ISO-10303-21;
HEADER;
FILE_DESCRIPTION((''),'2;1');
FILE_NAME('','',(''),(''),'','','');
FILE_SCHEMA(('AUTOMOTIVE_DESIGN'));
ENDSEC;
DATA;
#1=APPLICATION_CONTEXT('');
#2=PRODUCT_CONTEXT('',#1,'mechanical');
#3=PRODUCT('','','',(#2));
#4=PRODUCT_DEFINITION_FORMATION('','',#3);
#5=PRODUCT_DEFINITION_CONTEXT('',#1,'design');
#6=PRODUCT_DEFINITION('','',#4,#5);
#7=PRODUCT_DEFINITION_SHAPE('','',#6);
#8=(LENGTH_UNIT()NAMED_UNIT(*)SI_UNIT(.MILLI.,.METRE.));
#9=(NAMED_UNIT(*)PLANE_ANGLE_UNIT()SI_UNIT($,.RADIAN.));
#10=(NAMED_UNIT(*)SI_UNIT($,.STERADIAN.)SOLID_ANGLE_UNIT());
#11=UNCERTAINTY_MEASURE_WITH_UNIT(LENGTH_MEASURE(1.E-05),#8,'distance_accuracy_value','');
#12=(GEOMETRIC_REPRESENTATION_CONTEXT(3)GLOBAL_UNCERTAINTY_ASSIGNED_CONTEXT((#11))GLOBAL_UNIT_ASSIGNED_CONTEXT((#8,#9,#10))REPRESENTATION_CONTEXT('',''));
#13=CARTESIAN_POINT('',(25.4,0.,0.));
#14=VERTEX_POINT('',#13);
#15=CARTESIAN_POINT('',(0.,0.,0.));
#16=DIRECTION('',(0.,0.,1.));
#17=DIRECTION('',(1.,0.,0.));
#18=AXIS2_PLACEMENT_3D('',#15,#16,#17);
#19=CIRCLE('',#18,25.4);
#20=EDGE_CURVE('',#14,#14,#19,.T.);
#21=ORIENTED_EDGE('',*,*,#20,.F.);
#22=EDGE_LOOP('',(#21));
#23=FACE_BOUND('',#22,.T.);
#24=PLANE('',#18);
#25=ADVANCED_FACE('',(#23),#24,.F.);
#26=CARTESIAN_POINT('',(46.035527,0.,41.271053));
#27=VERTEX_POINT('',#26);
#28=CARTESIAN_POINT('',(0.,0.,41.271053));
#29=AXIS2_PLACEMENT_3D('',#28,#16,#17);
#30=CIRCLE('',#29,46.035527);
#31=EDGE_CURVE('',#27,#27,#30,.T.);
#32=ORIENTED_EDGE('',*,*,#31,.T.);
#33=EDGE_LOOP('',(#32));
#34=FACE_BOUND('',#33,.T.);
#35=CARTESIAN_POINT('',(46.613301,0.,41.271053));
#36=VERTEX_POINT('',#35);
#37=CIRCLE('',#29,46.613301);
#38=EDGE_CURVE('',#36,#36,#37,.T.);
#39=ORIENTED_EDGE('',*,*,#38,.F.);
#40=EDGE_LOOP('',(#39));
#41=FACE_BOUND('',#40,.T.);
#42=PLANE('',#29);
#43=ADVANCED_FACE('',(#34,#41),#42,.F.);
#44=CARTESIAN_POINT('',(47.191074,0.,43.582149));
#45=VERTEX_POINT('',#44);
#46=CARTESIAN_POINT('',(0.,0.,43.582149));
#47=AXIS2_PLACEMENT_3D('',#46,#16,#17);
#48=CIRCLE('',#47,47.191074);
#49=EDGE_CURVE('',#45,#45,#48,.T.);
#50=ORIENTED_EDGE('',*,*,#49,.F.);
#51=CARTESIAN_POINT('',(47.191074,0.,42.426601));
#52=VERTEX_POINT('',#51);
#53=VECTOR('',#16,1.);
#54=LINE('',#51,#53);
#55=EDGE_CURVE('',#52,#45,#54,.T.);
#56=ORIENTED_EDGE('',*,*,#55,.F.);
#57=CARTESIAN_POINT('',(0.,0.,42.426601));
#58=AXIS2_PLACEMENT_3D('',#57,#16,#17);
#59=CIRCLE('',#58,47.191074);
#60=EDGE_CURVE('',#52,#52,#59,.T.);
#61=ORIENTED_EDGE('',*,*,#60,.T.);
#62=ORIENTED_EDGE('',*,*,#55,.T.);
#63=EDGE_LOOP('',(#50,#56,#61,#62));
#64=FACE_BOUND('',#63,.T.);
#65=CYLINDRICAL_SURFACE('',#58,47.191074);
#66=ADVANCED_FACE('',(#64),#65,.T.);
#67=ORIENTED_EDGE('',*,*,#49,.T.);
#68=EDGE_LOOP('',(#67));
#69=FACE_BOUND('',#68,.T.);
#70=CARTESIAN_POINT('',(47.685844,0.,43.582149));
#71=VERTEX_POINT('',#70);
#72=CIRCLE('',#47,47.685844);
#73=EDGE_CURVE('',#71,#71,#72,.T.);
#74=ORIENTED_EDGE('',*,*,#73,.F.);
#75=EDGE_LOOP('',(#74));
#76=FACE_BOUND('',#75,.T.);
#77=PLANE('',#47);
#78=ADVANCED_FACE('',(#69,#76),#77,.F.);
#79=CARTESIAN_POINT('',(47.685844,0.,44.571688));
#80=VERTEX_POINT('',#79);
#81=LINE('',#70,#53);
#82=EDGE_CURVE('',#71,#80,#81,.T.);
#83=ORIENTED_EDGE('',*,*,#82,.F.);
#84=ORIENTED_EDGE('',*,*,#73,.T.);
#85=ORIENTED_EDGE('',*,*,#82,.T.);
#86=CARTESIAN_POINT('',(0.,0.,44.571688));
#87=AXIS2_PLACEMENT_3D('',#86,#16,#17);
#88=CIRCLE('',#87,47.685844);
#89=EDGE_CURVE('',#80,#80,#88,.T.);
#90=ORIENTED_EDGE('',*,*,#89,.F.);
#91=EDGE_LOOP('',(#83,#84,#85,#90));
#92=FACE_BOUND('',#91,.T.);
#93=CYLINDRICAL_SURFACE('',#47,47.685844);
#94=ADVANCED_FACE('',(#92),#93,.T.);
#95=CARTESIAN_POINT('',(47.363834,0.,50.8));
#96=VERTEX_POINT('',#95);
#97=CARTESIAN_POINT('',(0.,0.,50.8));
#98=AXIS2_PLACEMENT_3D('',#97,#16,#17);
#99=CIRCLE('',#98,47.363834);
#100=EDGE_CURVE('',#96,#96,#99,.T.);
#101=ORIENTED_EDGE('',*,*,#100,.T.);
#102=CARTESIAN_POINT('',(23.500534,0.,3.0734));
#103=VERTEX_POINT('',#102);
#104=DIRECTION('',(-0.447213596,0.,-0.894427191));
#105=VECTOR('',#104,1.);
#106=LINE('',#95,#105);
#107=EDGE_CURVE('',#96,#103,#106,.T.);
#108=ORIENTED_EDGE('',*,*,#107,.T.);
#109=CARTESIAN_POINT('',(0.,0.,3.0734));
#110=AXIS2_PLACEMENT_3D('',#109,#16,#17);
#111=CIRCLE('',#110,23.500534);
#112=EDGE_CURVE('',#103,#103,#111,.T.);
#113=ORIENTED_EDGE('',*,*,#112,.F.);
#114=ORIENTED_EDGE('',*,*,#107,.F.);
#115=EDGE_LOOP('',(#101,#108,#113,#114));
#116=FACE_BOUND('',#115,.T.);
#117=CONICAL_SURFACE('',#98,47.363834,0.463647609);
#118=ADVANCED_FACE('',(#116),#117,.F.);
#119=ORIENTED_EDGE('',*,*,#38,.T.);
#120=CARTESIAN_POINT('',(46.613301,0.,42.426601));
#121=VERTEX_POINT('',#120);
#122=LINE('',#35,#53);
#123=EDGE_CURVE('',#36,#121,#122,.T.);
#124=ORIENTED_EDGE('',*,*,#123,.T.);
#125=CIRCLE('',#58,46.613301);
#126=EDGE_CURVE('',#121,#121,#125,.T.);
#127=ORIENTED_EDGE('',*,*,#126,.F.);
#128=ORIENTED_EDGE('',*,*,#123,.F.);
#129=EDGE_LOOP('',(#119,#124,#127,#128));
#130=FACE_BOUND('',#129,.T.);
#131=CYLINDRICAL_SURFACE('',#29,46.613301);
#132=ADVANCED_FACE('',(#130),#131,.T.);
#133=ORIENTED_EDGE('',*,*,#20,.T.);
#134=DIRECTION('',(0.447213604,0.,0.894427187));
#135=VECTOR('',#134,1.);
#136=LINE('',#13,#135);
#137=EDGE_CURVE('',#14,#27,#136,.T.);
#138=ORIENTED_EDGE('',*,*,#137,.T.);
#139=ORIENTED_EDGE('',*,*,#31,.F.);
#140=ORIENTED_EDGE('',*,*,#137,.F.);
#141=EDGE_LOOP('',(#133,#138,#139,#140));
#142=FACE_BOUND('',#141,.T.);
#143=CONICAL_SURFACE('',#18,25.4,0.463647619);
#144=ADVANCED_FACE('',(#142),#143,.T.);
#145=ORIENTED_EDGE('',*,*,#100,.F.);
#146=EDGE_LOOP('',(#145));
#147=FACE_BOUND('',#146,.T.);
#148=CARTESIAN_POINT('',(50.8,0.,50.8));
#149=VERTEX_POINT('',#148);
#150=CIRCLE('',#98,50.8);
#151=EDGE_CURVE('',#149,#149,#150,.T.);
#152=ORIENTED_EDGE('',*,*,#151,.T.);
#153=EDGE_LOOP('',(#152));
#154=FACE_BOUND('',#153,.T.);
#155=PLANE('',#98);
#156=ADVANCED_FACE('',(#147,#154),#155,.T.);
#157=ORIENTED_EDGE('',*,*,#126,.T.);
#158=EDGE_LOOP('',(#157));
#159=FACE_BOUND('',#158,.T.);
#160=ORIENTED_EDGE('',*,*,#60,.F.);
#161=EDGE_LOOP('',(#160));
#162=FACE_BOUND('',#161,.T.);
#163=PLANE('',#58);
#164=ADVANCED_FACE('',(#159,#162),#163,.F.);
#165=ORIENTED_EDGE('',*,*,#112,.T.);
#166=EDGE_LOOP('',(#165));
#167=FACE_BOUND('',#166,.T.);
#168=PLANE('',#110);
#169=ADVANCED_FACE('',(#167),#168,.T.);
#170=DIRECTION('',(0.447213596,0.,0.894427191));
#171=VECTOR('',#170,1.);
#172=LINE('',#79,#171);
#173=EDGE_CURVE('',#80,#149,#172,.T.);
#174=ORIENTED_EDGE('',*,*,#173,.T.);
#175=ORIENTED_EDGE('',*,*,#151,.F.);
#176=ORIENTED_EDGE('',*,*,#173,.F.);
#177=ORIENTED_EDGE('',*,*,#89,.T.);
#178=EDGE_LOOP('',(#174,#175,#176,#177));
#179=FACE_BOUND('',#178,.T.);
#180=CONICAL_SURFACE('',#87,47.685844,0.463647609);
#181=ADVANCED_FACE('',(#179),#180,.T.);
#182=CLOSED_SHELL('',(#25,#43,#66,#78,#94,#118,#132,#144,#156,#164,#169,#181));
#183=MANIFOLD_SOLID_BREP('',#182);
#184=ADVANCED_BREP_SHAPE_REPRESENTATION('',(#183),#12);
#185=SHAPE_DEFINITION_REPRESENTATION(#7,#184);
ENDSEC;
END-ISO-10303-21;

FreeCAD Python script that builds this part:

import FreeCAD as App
import Part
import Sketcher
from FreeCAD import Vector
Q = App.Units.Quantity

doc = App.newDocument("Part")
body = doc.addObject("PartDesign::Body", "Body")

# Sketch on XZ plane
sketch1 = body.newObject("Sketcher::SketchObject", "Sketch")
sketch1.AttachmentSupport = (doc.getObject("XZ_Plane"), [""])
sketch1.MapMode = "FlatFace"
sketch1.addGeometry(Part.LineSegment(Vector(0, 3.07, 0), Vector(0, 0, 0)), False)
sketch1.addGeometry(Part.LineSegment(Vector(0, 0, 0), Vector(25.4, 0, 0)), False)
sketch1.addGeometry(Part.LineSegment(Vector(25.4, 0, 0), Vector(46.04, 41.27, 0)), False)
sketch1.addGeometry(Part.LineSegment(Vector(46.04, 41.27, 0), Vector(46.61, 41.27, 0)), False)
sketch1.addGeometry(Part.LineSegment(Vector(46.61, 41.27, 0), Vector(46.61, 42.43, 0)), False)
sketch1.addGeometry(Part.LineSegment(Vector(46.61, 42.43, 0), Vector(47.19, 42.43, 0)), False)
sketch1.addGeometry(Part.LineSegment(Vector(47.19, 42.43, 0), Vector(47.19, 43.58, 0)), False)
sketch1.addGeometry(Part.LineSegment(Vector(47.19, 43.58, 0), Vector(47.69, 43.58, 0)), False)
sketch1.addGeometry(Part.LineSegment(Vector(47.69, 43.58, 0), Vector(47.69, 44.57, 0)), False)
sketch1.addGeometry(Part.LineSegment(Vector(47.69, 44.57, 0), Vector(50.8, 50.8, 0)), False)
sketch1.addGeometry(Part.LineSegment(Vector(50.8, 50.8, 0), Vector(47.36, 50.8, 0)), False)
sketch1.addGeometry(Part.LineSegment(Vector(47.36, 50.8, 0), Vector(23.5, 3.07, 0)), False)
sketch1.addGeometry(Part.LineSegment(Vector(23.5, 3.07, 0), Vector(0, 3.07, 0)), False)
sketch1.addConstraint(Sketcher.Constraint("Coincident", 0, 2, 1, 1))
sketch1.addConstraint(Sketcher.Constraint("Coincident", 1, 2, 2, 1))
sketch1.addConstraint(Sketcher.Constraint("Coincident", 2, 2, 3, 1))
sketch1.addConstraint(Sketcher.Constraint("Coincident", 3, 2, 4, 1))
sketch1.addConstraint(Sketcher.Constraint("Coincident", 4, 2, 5, 1))
sketch1.addConstraint(Sketcher.Constraint("Coincident", 5, 2, 6, 1))
sketch1.addConstraint(Sketcher.Constraint("Coincident", 6, 2, 7, 1))
sketch1.addConstraint(Sketcher.Constraint("Coincident", 7, 2, 8, 1))
sketch1.addConstraint(Sketcher.Constraint("Coincident", 8, 2, 9, 1))
sketch1.addConstraint(Sketcher.Constraint("Coincident", 9, 2, 10, 1))
sketch1.addConstraint(Sketcher.Constraint("Coincident", 10, 2, 11, 1))
sketch1.addConstraint(Sketcher.Constraint("Coincident", 11, 2, 12, 1))
sketch1.addConstraint(Sketcher.Constraint("Coincident", 12, 2, 0, 1))
sketch1.addConstraint(Sketcher.Constraint("Vertical", 0))
sketch1.addConstraint(Sketcher.Constraint("Horizontal", 1))
sketch1.addConstraint(Sketcher.Constraint("Horizontal", 3))
sketch1.addConstraint(Sketcher.Constraint("Vertical", 4))
sketch1.addConstraint(Sketcher.Constraint("Horizontal", 5))
sketch1.addConstraint(Sketcher.Constraint("Vertical", 6))
sketch1.addConstraint(Sketcher.Constraint("Horizontal", 7))
sketch1.addConstraint(Sketcher.Constraint("Vertical", 8))
sketch1.addConstraint(Sketcher.Constraint("Horizontal", 10))
sketch1.addConstraint(Sketcher.Constraint("Horizontal", 12))
sketch1.addConstraint(Sketcher.Constraint("Coincident", 0, 2, -1, 1))
sketch1.addConstraint(Sketcher.Constraint("Parallel", 2, 9))
sketch1.addConstraint(Sketcher.Constraint("Parallel", 9, 11))
sketch1.addConstraint(Sketcher.Constraint("Equal", 3, 5))
sketch1.addConstraint(Sketcher.Constraint("Equal", 4, 6))
sketch1.addConstraint(Sketcher.Constraint("DistanceX", 1, 1, 1, 2, Q("1 in")))
sketch1.addConstraint(Sketcher.Constraint("DistanceX", -1, 1, 9, 2, Q("2 in")))
sketch1.addConstraint(Sketcher.Constraint("DistanceY", -1, 1, 9, 2, Q("2 in")))
sketch1.addConstraint(Sketcher.Constraint("DistanceY", 0, 2, 0, 1, Q("0.121 in")))
sketch1.addConstraint(Sketcher.Constraint("DistanceX", 7, 1, 7, 2, Q("0.49477 mm")))
sketch1.addConstraint(Sketcher.Constraint("DistanceY", 6, 1, 6, 2, Q("1.155548 mm")))
sketch1.addConstraint(Sketcher.Constraint("DistanceY", 8, 1, 8, 2, Q("0.989539 mm")))
sketch1.addConstraint(Sketcher.Constraint("DistanceX", -1, 1, 3, 2, Q("46.613301 mm")))
sketch1.addConstraint(Sketcher.Constraint("DistanceY", -1, 1, 4, 2, Q("42.426601 mm")))
sketch1.addConstraint(Sketcher.Constraint("DistanceX", 10, 2, 10, 1, Q("3.436166 mm")))
revolution = body.newObject("PartDesign::Revolution", "Revolution")
revolution.Profile = sketch1
revolution.ReferenceAxis = (sketch1, ["V_Axis"])
revolution.Angle = 360

doc.recompute()
